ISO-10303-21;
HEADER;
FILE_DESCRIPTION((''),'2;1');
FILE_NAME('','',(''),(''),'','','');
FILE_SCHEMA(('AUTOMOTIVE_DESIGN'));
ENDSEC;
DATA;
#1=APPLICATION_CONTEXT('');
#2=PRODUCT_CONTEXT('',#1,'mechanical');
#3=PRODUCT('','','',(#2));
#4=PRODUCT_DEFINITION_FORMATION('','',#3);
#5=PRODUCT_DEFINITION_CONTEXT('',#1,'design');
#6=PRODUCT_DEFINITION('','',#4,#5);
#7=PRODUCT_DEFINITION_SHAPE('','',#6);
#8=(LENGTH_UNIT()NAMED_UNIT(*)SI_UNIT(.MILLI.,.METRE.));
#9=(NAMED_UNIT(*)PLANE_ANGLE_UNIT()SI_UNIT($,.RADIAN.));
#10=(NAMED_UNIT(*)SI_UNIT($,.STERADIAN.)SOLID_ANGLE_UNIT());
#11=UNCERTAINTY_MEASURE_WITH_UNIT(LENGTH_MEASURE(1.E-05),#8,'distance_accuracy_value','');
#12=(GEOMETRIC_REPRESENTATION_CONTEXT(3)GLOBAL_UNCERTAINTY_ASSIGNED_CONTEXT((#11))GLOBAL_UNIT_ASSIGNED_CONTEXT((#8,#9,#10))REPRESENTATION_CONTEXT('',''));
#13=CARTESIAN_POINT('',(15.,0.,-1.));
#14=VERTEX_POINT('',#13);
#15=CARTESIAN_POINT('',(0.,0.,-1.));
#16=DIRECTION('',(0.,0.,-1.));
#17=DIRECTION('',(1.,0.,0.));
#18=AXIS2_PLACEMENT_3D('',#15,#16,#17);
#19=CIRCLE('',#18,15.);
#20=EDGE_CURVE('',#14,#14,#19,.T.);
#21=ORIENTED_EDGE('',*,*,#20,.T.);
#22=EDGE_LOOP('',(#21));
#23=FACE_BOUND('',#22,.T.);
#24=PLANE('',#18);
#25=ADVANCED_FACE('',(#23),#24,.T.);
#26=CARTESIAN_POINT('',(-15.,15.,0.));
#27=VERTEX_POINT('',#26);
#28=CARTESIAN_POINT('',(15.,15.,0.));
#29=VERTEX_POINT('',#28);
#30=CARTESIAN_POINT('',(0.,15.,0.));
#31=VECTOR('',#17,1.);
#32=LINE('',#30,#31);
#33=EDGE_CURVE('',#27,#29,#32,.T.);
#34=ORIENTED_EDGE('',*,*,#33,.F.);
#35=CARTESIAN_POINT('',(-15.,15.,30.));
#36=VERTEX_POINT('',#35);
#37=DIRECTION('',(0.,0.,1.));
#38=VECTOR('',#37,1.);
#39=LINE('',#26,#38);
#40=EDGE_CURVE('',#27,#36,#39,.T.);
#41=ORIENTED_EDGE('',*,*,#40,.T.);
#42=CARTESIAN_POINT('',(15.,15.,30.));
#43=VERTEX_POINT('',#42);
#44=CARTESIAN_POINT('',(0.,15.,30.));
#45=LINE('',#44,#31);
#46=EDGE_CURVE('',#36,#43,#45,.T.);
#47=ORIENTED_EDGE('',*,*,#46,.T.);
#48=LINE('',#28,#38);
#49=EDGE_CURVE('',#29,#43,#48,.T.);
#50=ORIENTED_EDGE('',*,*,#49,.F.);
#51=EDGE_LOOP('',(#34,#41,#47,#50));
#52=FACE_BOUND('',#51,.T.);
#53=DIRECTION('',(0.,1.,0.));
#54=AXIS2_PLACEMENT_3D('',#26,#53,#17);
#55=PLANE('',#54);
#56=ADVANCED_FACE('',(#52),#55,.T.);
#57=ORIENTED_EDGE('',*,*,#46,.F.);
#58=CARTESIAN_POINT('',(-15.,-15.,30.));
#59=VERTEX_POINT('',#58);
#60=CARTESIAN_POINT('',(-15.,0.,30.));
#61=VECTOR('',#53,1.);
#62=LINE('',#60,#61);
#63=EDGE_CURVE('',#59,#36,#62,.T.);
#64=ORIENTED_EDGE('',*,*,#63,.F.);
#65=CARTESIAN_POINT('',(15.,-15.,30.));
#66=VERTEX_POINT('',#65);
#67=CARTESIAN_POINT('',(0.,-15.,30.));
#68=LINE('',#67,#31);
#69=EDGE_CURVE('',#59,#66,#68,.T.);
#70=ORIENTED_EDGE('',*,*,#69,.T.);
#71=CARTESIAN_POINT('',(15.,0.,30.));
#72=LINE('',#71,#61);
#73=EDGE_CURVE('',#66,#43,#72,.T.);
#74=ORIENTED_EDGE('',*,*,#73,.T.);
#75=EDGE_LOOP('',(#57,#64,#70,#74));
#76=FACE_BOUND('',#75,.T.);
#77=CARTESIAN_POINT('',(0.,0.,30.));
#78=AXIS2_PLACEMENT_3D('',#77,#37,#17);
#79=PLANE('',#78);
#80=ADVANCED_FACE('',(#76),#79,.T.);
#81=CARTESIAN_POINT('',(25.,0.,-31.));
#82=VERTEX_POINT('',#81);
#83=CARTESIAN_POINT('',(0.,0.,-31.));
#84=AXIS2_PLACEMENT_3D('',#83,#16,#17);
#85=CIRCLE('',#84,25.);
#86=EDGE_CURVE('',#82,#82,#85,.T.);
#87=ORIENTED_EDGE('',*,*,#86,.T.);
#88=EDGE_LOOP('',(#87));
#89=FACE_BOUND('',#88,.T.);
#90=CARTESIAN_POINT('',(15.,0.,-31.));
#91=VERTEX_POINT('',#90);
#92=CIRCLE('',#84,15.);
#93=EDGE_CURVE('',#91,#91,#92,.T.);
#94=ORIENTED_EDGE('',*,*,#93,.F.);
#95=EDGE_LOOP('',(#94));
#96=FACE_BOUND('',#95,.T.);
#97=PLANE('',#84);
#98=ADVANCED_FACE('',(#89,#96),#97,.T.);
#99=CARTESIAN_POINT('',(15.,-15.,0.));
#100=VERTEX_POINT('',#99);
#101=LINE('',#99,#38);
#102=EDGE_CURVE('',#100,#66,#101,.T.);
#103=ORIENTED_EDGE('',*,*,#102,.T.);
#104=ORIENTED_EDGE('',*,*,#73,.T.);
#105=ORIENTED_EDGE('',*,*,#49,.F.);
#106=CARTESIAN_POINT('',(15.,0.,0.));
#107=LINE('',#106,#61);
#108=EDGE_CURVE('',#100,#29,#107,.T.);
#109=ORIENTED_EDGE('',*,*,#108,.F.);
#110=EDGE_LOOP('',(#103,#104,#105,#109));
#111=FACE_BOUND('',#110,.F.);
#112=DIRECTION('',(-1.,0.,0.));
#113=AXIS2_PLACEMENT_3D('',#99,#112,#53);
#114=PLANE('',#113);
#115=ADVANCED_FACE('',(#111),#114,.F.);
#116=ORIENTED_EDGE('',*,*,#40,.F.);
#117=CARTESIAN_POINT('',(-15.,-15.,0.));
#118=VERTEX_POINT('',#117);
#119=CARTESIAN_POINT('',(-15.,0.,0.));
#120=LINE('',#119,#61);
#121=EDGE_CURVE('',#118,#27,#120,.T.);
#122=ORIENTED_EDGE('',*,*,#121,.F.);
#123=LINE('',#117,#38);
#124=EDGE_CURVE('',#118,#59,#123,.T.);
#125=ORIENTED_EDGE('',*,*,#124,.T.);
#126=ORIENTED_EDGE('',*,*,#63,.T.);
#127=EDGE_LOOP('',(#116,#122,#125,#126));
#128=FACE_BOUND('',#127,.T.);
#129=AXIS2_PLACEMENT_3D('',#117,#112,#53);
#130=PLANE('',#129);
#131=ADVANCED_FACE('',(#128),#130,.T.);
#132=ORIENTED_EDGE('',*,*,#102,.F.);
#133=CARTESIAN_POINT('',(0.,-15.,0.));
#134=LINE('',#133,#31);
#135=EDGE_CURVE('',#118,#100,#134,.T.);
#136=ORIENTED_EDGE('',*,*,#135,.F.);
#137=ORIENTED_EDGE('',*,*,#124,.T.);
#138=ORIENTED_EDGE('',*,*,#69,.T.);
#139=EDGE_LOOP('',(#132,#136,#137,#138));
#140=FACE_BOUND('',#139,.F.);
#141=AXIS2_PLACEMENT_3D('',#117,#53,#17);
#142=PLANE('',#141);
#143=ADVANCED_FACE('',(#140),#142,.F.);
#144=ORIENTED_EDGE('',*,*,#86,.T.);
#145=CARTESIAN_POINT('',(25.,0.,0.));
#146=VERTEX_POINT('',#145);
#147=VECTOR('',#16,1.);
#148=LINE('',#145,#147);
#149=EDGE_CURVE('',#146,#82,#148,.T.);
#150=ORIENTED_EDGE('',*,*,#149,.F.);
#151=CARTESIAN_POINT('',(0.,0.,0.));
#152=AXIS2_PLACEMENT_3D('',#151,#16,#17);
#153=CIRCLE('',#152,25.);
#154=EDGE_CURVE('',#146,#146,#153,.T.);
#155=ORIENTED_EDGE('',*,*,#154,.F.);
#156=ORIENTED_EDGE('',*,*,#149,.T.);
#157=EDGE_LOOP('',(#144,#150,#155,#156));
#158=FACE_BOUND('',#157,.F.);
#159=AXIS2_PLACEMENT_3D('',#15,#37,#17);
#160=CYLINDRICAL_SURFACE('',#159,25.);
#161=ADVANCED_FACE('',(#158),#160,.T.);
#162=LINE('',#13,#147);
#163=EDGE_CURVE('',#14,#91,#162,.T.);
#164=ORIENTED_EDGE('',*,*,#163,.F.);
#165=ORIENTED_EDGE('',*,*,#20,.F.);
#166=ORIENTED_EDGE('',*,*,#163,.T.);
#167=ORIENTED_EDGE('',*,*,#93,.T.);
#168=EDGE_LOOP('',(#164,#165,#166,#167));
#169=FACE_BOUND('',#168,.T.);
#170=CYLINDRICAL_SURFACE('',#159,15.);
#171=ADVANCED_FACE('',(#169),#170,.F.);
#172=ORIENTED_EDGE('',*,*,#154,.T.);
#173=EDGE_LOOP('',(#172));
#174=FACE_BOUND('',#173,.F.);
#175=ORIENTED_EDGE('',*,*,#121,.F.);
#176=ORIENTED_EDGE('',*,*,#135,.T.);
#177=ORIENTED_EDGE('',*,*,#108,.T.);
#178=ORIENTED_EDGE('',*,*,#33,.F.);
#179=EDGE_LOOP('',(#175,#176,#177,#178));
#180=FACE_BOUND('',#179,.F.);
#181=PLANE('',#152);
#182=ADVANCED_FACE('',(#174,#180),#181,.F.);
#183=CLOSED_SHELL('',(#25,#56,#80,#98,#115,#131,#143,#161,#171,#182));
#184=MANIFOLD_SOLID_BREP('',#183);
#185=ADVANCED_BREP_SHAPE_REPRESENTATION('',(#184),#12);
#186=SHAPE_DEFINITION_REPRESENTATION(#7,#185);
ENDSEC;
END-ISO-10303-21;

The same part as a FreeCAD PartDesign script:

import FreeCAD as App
import Part
import Sketcher

V = App.Vector


def add_polygon(sketch, points):
    """Adds a closed chain of lines whose ends are joined by coincident constraints."""
    first, n = sketch.GeometryCount, len(points)
    for a, b in zip(points, points[1:] + points[:1]):
        sketch.addGeometry(Part.LineSegment(App.Vector(*a, 0), App.Vector(*b, 0)), False)
    for i in range(n):
        sketch.addConstraint(Sketcher.Constraint("Coincident", first + i, 2, first + (i + 1) % n, 1))

doc = App.newDocument("Part")
body = doc.addObject("PartDesign::Body", "Body")

sketch1 = body.newObject("Sketcher::SketchObject", "Sketch")
sketch1.AttachmentSupport = (doc.getObject("XY_Plane"), [""])
sketch1.MapMode = "FlatFace"
add_polygon(sketch1, [(-15, 15), (-15, -15), (15, -15), (15, 15)])
sketch1.addConstraint([
    Sketcher.Constraint("Vertical", 0),
    Sketcher.Constraint("Horizontal", 1),
    Sketcher.Constraint("Vertical", 2),
    Sketcher.Constraint("Horizontal", 3),
    Sketcher.Constraint("Symmetric", 0, 2, 2, 2, -1, 1),
    Sketcher.Constraint("Equal", 3, 0),
    Sketcher.Constraint("DistanceX", 1, 1, 1, 2, 30.0),
])
pad1 = body.newObject("PartDesign::Pad", "Pad")
pad1.Profile = sketch1
pad1.Length = 30

sketch2 = body.newObject("Sketcher::SketchObject", "Sketch001")
sketch2.AttachmentSupport = (doc.getObject("XY_Plane"), [""])
sketch2.MapMode = "FlatFace"
sketch2.addGeometry(Part.Circle(V(0, 0, 0), V(0, 0, 1), 25), False)
sketch2.addConstraint([
    Sketcher.Constraint("Coincident", 0, 3, -1, 1),
    Sketcher.Constraint("Diameter", 0, 50.0),
])
pad2 = body.newObject("PartDesign::Pad", "Pad001")
pad2.Profile = sketch2
pad2.Length = 1
pad2.Reversed = True

sketch3 = body.newObject("Sketcher::SketchObject", "Sketch002")
sketch3.AttachmentSupport = (doc.getObject("XY_Plane"), [""])
sketch3.MapMode = "FlatFace"
sketch3.AttachmentOffset = App.Placement(V(0, 0, -1), App.Rotation())
sketch3.addGeometry([
    Part.Circle(V(0, 0, 0), V(0, 0, 1), 25),
    Part.Circle(V(0, 0, 0), V(0, 0, 1), 15),
], False)
sketch3.addConstraint([
    Sketcher.Constraint("Coincident", 0, 3, -1, 1),
    Sketcher.Constraint("Coincident", 1, 3, -1, 1),
    Sketcher.Constraint("Diameter", 0, 50.0),
    Sketcher.Constraint("Diameter", 1, 30.0),
])
pad3 = body.newObject("PartDesign::Pad", "Pad002")
pad3.Profile = sketch3
pad3.Length = 30
pad3.Reversed = True

doc.recompute()
